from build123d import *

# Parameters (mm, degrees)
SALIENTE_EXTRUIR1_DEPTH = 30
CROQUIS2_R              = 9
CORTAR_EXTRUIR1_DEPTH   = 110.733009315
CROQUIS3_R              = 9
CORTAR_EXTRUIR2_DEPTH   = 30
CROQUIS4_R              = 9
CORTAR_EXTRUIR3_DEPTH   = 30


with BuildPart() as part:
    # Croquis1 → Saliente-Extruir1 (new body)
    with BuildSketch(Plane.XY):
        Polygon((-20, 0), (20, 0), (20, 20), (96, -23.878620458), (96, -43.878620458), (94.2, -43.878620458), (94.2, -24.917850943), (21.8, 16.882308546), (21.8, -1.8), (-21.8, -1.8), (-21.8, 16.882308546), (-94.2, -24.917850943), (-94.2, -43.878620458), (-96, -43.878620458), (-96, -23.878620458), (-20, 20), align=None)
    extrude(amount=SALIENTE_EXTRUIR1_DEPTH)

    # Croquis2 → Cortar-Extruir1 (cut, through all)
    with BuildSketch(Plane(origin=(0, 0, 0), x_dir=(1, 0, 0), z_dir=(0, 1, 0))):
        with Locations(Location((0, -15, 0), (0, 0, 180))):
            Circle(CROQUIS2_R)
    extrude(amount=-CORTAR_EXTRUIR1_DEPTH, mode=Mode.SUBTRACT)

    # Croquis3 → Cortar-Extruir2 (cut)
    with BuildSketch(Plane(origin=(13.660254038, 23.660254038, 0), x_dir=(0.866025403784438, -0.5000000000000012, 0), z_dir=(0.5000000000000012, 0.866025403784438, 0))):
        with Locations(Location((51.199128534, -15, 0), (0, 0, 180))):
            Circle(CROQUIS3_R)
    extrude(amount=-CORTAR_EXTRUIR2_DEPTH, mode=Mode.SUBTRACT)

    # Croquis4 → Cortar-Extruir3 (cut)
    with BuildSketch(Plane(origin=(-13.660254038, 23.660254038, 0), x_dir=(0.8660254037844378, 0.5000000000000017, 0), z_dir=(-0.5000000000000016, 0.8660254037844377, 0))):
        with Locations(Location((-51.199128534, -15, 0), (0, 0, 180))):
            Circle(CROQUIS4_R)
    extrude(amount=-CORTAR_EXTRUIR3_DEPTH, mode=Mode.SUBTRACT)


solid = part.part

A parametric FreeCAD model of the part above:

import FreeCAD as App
import Part
import Sketcher

V = App.Vector
Q = App.Units.Quantity


def add_polygon(sketch, points):
    """Adds a closed chain of lines whose ends are joined by coincident constraints."""
    first, n = sketch.GeometryCount, len(points)
    for a, b in zip(points, points[1:] + points[:1]):
        sketch.addGeometry(Part.LineSegment(App.Vector(*a, 0), App.Vector(*b, 0)), False)
    for i in range(n):
        sketch.addConstraint(Sketcher.Constraint("Coincident", first + i, 2, first + (i + 1) % n, 1))

doc = App.newDocument("Part")
params = doc.addObject("Spreadsheet::Sheet", "Params")
for row, (alias, value) in enumerate([
    ("sketch1_width", "40 mm"),
    ("sketch1_height", "20 mm"),
    ("sketch1_width2", "1.8 mm"),
    ("sketch1_width3", "43.6 mm"),
    ("pad1_length", "30 mm"),
    ("sketch2_diameter", "18 mm"),
    ("sketch3_diameter", "18 mm"),
    ("pocket2_length", "30 mm"),
    ("sketch4_diameter", "18 mm"),
    ("pocket3_length", "30 mm"),
], start=1):
    params.set(f"A{row}", alias)
    params.set(f"B{row}", "=" + value)
    params.setAlias(f"B{row}", alias)

body = doc.addObject("PartDesign::Body", "Body")

# Sketch on XY plane
sketch1 = body.newObject("Sketcher::SketchObject", "Sketch")
sketch1.AttachmentSupport = (doc.getObject("XY_Plane"), [""])
sketch1.MapMode = "FlatFace"
add_polygon(sketch1, [(20, 0), (-20, 0), (-20, 20), (-96, -23.9), (-96, -43.9), (-94.2, -43.9), (-94.2, -24.9), (-21.8, 16.9), (-21.8, -1.8), (21.8, -1.8), (21.8, 16.9), (94.2, -24.9), (94.2, -43.9), (96, -43.9), (96, -23.9), (20, 20)])  # lines 0-15
sketch1.addConstraint([
    Sketcher.Constraint("Horizontal", 0),
    Sketcher.Constraint("Vertical", 1),
    Sketcher.Constraint("Vertical", 3),
    Sketcher.Constraint("Horizontal", 4),
    Sketcher.Constraint("Vertical", 5),
    Sketcher.Constraint("Vertical", 7),
    Sketcher.Constraint("Horizontal", 8),
    Sketcher.Constraint("Vertical", 9),
    Sketcher.Constraint("Vertical", 11),
    Sketcher.Constraint("Horizontal", 12),
    Sketcher.Constraint("Vertical", 13),
    Sketcher.Constraint("Vertical", 15),
    Sketcher.Constraint("Symmetric", 0, 2, 15, 2, -1, 1),
    Sketcher.Constraint("Symmetric", 6, 2, 9, 2, -2),
    Sketcher.Constraint("Symmetric", 5, 2, 10, 2, -2),
    Sketcher.Constraint("Symmetric", 3, 2, 12, 2, -2),
    Sketcher.Constraint("Parallel", 2, 6),
    Sketcher.Constraint("Parallel", 10, 14),
    Sketcher.Constraint("Horizontal", 2, 2, 13, 2),
    Sketcher.Constraint("Equal", 1, 3),
    Sketcher.Constraint("DistanceX", 0, 2, 0, 1, Q("40 mm")),
    Sketcher.Constraint("DistanceY", 1, 1, 1, 2, Q("20 mm")),
    Sketcher.Constraint("Angle", 2, Q("-150 deg")),
    Sketcher.Constraint("DistanceX", 4, 1, 4, 2, Q("1.8 mm")),
    Sketcher.Constraint("DistanceX", 8, 1, 8, 2, Q("43.6 mm")),
    Sketcher.Constraint("DistanceX", 2, 2, -1, 1, Q("96 mm")),
    Sketcher.Constraint("DistanceY", 7, 2, -1, 1, Q("1.8 mm")),
    Sketcher.Constraint("DistanceY", 5, 1, 5, 2, Q("18.96077 mm")),
])
sketch1.setExpression("Constraints[36]", "Params.sketch1_width")
sketch1.setExpression("Constraints[37]", "Params.sketch1_height")
sketch1.setExpression("Constraints[39]", "Params.sketch1_width2")
sketch1.setExpression("Constraints[40]", "Params.sketch1_width3")
pad1 = body.newObject("PartDesign::Pad", "Pad")
pad1.Profile = sketch1
pad1.setExpression("Length", "Params.pad1_length")

# Sketch on XZ plane
sketch2 = body.newObject("Sketcher::SketchObject", "Sketch001")
sketch2.AttachmentSupport = (doc.getObject("XZ_Plane"), [""])
sketch2.MapMode = "FlatFace"
sketch2.addGeometry(Part.Circle(V(0, 15, 0), V(0, 0, 1), 9), False)
sketch2.addConstraint([
    Sketcher.Constraint("PointOnObject", 0, 3, -2),
    Sketcher.Constraint("Diameter", 0, Q("18 mm")),
    Sketcher.Constraint("DistanceY", -1, 1, 0, 3, Q("15 mm")),
])
sketch2.setExpression("Constraints[1]", "Params.sketch2_diameter")
pocket1 = body.newObject("PartDesign::Pocket", "Pocket")
pocket1.Profile = sketch2
pocket1.Type = "ThroughAll"
pocket1.Reversed = True

# Sketch on an angled plane
sketch3 = body.newObject("Sketcher::SketchObject", "Sketch002")
sketch3.Placement = App.Placement(V(13.660254, 23.660254, 0), App.Rotation(V(0.866025404, -0.5, 0), V(0, 0, -1), V(0.5, 0.866025404, 0), "ZXY"))
sketch3.addGeometry(Part.Circle(V(51, -15, 0), V(0, 0, 1), 9), False)
sketch3.addConstraint([
    Sketcher.Constraint("Diameter", 0, Q("18 mm")),
    Sketcher.Constraint("DistanceY", 0, 3, -1, 1, Q("15 mm")),
    Sketcher.Constraint("DistanceX", -1, 1, 0, 3, Q("51.199129 mm")),
])
sketch3.setExpression("Constraints[0]", "Params.sketch3_diameter")
pocket2 = body.newObject("PartDesign::Pocket", "Pocket001")
pocket2.Profile = sketch3
pocket2.setExpression("Length", "Params.pocket2_length")

# Sketch on an angled plane
sketch4 = body.newObject("Sketcher::SketchObject", "Sketch003")
sketch4.Placement = App.Placement(V(-13.660254, 23.660254, 0), App.Rotation(V(0.866025404, 0.5, 0), V(0, 0, -1), V(-0.5, 0.866025404, 0), "ZXY"))
sketch4.addGeometry(Part.Circle(V(-51, -15, 0), V(0, 0, 1), 9), False)
sketch4.addConstraint([
    Sketcher.Constraint("Diameter", 0, Q("18 mm")),
    Sketcher.Constraint("DistanceY", 0, 3, -1, 1, Q("15 mm")),
    Sketcher.Constraint("DistanceX", 0, 3, -1, 1, Q("51.199129 mm")),
])
sketch4.setExpression("Constraints[0]", "Params.sketch4_diameter")
pocket3 = body.newObject("PartDesign::Pocket", "Pocket002")
pocket3.Profile = sketch4
pocket3.setExpression("Length", "Params.pocket3_length")

doc.recompute()
